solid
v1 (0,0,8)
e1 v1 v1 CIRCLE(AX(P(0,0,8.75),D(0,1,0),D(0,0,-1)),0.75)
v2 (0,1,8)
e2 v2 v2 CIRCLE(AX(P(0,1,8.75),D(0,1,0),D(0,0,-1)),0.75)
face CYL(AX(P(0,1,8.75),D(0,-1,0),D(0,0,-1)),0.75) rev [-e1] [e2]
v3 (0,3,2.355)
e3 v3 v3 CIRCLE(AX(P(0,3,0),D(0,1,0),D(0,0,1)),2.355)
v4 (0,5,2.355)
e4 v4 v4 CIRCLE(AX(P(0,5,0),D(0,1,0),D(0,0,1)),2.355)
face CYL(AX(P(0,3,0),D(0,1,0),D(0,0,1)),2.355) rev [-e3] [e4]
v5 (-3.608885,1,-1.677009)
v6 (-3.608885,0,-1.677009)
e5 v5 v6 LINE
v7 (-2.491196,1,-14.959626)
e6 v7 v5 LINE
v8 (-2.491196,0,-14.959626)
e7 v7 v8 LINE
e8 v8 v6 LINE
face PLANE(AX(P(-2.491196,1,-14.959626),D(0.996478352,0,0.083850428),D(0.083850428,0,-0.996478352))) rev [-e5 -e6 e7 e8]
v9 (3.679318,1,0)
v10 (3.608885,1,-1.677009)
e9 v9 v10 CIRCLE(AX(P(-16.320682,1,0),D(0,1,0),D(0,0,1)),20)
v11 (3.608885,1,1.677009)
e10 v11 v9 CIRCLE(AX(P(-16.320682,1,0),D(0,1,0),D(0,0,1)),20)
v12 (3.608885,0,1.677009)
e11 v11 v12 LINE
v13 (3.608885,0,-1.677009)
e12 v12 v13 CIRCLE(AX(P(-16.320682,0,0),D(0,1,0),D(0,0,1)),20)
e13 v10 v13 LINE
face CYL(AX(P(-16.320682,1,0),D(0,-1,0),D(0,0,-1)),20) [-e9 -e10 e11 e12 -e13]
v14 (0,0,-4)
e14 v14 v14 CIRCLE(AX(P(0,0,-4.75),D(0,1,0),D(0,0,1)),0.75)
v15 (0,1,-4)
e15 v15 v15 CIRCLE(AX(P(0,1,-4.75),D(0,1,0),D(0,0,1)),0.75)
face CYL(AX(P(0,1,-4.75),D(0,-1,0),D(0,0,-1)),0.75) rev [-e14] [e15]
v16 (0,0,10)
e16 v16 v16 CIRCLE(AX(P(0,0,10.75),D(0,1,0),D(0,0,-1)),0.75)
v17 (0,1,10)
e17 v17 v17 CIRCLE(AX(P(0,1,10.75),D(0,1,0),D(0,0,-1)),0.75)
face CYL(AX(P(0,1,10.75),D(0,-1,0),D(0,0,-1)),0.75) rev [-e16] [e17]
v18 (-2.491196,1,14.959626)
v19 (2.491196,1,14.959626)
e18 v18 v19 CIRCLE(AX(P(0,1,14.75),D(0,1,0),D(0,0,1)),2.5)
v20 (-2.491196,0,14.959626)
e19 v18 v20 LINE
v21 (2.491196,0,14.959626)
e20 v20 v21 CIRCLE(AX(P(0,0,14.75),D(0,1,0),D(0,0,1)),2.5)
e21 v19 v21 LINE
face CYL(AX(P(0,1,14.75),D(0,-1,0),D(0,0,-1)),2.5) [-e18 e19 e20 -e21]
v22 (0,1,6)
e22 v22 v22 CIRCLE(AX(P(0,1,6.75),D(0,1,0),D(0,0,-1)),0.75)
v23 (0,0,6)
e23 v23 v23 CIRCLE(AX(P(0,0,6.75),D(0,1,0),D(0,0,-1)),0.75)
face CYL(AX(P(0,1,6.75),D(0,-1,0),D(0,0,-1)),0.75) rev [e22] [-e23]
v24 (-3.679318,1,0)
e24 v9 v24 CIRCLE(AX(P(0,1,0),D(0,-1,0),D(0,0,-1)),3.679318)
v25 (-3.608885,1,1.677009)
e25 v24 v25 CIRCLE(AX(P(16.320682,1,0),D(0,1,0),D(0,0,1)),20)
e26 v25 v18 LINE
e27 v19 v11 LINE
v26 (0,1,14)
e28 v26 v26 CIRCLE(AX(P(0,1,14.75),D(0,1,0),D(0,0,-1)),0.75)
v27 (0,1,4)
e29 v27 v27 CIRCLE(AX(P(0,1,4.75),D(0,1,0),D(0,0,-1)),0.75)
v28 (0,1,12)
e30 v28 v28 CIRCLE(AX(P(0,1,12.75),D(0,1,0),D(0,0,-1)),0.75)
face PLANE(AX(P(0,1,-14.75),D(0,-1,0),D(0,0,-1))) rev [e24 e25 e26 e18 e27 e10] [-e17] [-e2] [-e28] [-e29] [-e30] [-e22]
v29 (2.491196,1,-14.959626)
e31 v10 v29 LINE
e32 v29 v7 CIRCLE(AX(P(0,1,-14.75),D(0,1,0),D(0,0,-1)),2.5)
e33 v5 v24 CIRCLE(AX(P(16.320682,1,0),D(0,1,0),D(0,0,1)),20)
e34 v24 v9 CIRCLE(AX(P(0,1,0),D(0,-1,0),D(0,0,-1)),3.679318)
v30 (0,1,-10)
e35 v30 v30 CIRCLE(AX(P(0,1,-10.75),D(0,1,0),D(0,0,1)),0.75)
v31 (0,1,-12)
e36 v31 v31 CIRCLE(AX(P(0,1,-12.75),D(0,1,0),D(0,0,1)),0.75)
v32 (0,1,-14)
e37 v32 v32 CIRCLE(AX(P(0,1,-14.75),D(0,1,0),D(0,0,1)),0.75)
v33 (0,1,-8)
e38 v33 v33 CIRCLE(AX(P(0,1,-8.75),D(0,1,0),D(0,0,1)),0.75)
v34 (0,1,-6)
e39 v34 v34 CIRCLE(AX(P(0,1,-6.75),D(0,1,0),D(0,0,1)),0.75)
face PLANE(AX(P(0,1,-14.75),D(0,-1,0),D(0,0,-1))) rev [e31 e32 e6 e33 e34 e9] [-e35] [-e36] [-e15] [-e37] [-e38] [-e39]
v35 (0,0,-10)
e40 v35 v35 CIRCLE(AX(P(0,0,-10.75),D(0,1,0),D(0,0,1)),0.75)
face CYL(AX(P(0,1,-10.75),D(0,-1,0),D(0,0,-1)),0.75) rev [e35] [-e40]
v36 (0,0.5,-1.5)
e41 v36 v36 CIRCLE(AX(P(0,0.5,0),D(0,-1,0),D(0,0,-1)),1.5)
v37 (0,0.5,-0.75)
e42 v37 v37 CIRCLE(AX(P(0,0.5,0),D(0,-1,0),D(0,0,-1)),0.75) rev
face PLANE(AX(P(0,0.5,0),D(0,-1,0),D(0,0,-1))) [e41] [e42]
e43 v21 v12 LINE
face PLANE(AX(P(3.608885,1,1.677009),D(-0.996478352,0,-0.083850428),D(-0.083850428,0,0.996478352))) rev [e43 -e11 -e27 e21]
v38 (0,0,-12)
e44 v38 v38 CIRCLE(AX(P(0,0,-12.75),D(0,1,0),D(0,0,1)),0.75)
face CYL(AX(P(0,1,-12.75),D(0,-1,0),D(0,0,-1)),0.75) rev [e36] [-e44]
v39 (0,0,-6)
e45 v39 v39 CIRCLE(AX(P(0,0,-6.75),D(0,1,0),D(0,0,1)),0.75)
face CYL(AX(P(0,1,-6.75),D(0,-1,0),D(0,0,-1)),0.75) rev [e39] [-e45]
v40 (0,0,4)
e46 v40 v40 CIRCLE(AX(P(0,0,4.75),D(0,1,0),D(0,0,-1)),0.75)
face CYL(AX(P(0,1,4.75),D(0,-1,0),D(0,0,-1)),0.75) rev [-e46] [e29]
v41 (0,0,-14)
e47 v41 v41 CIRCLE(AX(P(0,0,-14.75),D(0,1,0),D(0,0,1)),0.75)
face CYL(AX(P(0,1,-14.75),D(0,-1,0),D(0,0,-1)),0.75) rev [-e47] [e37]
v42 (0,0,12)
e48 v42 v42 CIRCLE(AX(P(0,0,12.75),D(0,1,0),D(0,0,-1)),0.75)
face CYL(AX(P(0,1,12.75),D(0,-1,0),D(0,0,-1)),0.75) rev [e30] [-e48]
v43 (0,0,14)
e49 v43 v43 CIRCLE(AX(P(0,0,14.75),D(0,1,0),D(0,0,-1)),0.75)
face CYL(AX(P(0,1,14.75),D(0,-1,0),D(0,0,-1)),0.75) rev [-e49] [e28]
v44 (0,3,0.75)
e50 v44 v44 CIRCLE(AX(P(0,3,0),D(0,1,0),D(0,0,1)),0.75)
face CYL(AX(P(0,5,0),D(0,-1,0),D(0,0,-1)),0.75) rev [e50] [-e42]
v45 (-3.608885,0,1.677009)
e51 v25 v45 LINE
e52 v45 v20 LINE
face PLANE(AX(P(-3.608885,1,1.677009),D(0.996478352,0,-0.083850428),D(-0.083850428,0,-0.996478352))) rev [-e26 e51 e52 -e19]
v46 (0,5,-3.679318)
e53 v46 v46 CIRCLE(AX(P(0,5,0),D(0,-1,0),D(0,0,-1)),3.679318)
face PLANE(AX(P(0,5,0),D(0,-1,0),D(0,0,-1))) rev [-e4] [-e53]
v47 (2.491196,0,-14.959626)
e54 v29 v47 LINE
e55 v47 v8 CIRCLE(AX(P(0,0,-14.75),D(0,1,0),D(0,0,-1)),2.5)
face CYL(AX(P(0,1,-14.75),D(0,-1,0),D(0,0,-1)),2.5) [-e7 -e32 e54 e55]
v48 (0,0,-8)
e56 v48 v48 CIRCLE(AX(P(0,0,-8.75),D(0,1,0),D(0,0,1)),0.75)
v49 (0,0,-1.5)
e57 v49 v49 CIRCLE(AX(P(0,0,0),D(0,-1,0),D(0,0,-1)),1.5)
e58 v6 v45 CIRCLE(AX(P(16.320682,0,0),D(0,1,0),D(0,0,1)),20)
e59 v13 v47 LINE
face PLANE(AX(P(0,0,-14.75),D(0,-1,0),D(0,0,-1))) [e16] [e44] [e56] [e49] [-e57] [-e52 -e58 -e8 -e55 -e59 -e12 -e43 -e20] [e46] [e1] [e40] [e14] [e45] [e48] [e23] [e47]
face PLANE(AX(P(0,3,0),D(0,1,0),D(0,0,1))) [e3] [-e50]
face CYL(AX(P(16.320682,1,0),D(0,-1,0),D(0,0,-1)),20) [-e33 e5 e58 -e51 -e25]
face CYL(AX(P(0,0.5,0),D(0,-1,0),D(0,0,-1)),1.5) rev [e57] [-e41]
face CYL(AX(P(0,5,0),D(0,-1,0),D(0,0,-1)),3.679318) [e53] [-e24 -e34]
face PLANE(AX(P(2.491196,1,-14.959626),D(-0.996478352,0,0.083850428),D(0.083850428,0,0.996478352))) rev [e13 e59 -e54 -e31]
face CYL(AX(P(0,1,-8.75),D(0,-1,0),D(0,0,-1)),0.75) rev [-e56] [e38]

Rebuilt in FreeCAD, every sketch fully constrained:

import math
import FreeCAD as App
import Part
import Sketcher

V = App.Vector

doc = App.newDocument("Part")
body = doc.addObject("PartDesign::Body", "Body")

sketch1 = body.newObject("Sketcher::SketchObject", "Sketch")
sketch1.AttachmentSupport = (doc.getObject("XZ_Plane"), [""])
sketch1.MapMode = "FlatFace"
sketch1.addGeometry(Part.LineSegment(V(-2.491196, -14.959626, 0), V(-3.608885, -1.677009, 0)), False)
sketch1.addGeometry(Part.ArcOfCircle(Part.Circle(V(16.320682, 0, 0), V(0, 0, 1), 20), math.radians(175.190077), math.radians(184.809923)), False)
sketch1.addGeometry(Part.LineSegment(V(-3.608885, 1.677009, 0), V(-2.491196, 14.959626, 0)), False)
sketch1.addGeometry(Part.ArcOfCircle(Part.Circle(V(0, 14.75, 0), V(0, 0, 1), 2.5), math.radians(4.809923), math.radians(175.190077)), False)
sketch1.addGeometry(Part.LineSegment(V(2.491196, 14.959626, 0), V(3.608885, 1.677009, 0)), False)
sketch1.addGeometry(Part.ArcOfCircle(Part.Circle(V(-16.320682, 0, 0), V(0, 0, 1), 20), math.radians(-4.809923), math.radians(4.809923)), False)
sketch1.addGeometry(Part.LineSegment(V(3.608885, -1.677009, 0), V(2.491196, -14.959626, 0)), False)
sketch1.addGeometry(Part.ArcOfCircle(Part.Circle(V(0, -14.75, 0), V(0, 0, 1), 2.5), math.radians(-175.190077), math.radians(-4.809923)), False)
sketch1.addGeometry(Part.Circle(V(0, 14.75, 0), V(0, 0, 1), 0.75), False)
sketch1.addGeometry(Part.Circle(V(0, 12.75, 0), V(0, 0, 1), 0.75), False)
sketch1.addGeometry(Part.Circle(V(0, 10.75, 0), V(0, 0, 1), 0.75), False)
sketch1.addGeometry(Part.Circle(V(0, 8.75, 0), V(0, 0, 1), 0.75), False)
sketch1.addGeometry(Part.Circle(V(0, 6.75, 0), V(0, 0, 1), 0.75), False)
sketch1.addGeometry(Part.Circle(V(0, 4.75, 0), V(0, 0, 1), 0.75), False)
sketch1.addGeometry(Part.Circle(V(0, 0, 0), V(0, 0, 1), 0.75), False)
sketch1.addGeometry(Part.Circle(V(0, -4.75, 0), V(0, 0, 1), 0.75), False)
sketch1.addGeometry(Part.Circle(V(0, -6.75, 0), V(0, 0, 1), 0.75), False)
sketch1.addGeometry(Part.Circle(V(0, -8.75, 0), V(0, 0, 1), 0.75), False)
sketch1.addGeometry(Part.Circle(V(0, -10.75, 0), V(0, 0, 1), 0.75), False)
sketch1.addGeometry(Part.Circle(V(0, -12.75, 0), V(0, 0, 1), 0.75), False)
sketch1.addGeometry(Part.Circle(V(0, -14.75, 0), V(0, 0, 1), 0.75), False)
sketch1.addConstraint(Sketcher.Constraint("Tangent", 0, 2, 1, 2))
sketch1.addConstraint(Sketcher.Constraint("Tangent", 1, 1, 2, 1))
sketch1.addConstraint(Sketcher.Constraint("Tangent", 2, 2, 3, 2))
sketch1.addConstraint(Sketcher.Constraint("Tangent", 3, 1, 4, 1))
sketch1.addConstraint(Sketcher.Constraint("Tangent", 4, 2, 5, 2))
sketch1.addConstraint(Sketcher.Constraint("Tangent", 5, 1, 6, 1))
sketch1.addConstraint(Sketcher.Constraint("Tangent", 6, 2, 7, 2))
sketch1.addConstraint(Sketcher.Constraint("Tangent", 7, 1, 0, 1))
sketch1.addConstraint(Sketcher.Constraint("Coincident", 14, 3, -1, 1))
sketch1.addConstraint(Sketcher.Constraint("Coincident", 8, 3, 3, 3))
sketch1.addConstraint(Sketcher.Constraint("Coincident", 20, 3, 7, 3))
sketch1.addConstraint(Sketcher.Constraint("Equal", 1, 5))
sketch1.addConstraint(Sketcher.Constraint("Equal", 3, 7))
sketch1.addConstraint(Sketcher.Constraint("Equal", 8, 9))
sketch1.addConstraint(Sketcher.Constraint("Equal", 9, 10))
sketch1.addConstraint(Sketcher.Constraint("Equal", 10, 11))
sketch1.addConstraint(Sketcher.Constraint("Equal", 11, 12))
sketch1.addConstraint(Sketcher.Constraint("Equal", 12, 13))
sketch1.addConstraint(Sketcher.Constraint("Equal", 13, 14))
sketch1.addConstraint(Sketcher.Constraint("Equal", 14, 15))
sketch1.addConstraint(Sketcher.Constraint("Equal", 15, 16))
sketch1.addConstraint(Sketcher.Constraint("Equal", 16, 17))
sketch1.addConstraint(Sketcher.Constraint("Equal", 17, 18))
sketch1.addConstraint(Sketcher.Constraint("Equal", 18, 19))
sketch1.addConstraint(Sketcher.Constraint("Equal", 19, 20))
sketch1.addConstraint(Sketcher.Constraint("Symmetric", 1, 3, 5, 3, -1, 1))
sketch1.addConstraint(Sketcher.Constraint("Symmetric", 3, 3, 7, 3, -1, 1))
sketch1.addConstraint(Sketcher.Constraint("Symmetric", 13, 3, 15, 3, -1, 1))
sketch1.addConstraint(Sketcher.Constraint("Symmetric", 12, 3, 16, 3, -1, 1))
sketch1.addConstraint(Sketcher.Constraint("Symmetric", 11, 3, 17, 3, -1, 1))
sketch1.addConstraint(Sketcher.Constraint("Symmetric", 10, 3, 18, 3, -1, 1))
sketch1.addConstraint(Sketcher.Constraint("Symmetric", 9, 3, 19, 3, -1, 1))
sketch1.addConstraint(Sketcher.Constraint("Symmetric", 2, 2, 3, 1, -2))
sketch1.addConstraint(Sketcher.Constraint("PointOnObject", 9, 3, -2))
sketch1.addConstraint(Sketcher.Constraint("PointOnObject", 10, 3, -2))
sketch1.addConstraint(Sketcher.Constraint("PointOnObject", 11, 3, -2))
sketch1.addConstraint(Sketcher.Constraint("PointOnObject", 12, 3, -2))
sketch1.addConstraint(Sketcher.Constraint("PointOnObject", 13, 3, -2))
sketch1.addConstraint(Sketcher.Constraint("Radius", 1, 20.0))
sketch1.addConstraint(Sketcher.Constraint("Diameter", 8, 1.5))
sketch1.addConstraint(Sketcher.Constraint("Radius", 3, 2.5))
sketch1.addConstraint(Sketcher.Constraint("DistanceY", 9, 3, 3, 3, 2.0))
sketch1.addConstraint(Sketcher.Constraint("DistanceY", 10, 3, 9, 3, 2.0))
sketch1.addConstraint(Sketcher.Constraint("DistanceY", 11, 3, 10, 3, 2.0))
sketch1.addConstraint(Sketcher.Constraint("DistanceY", 12, 3, 11, 3, 2.0))
sketch1.addConstraint(Sketcher.Constraint("DistanceY", 13, 3, 12, 3, 2.0))
sketch1.addConstraint(Sketcher.Constraint("DistanceY", 7, 3, 3, 3, 29.5))
sketch1.addConstraint(Sketcher.Constraint("Distance", 0, 13.32956))
pad1 = body.newObject("PartDesign::Pad", "Pad")
pad1.Profile = sketch1
pad1.Length = 1
pad1.Reversed = True

sketch2 = body.newObject("Sketcher::SketchObject", "Sketch001")
sketch2.AttachmentSupport = (doc.getObject("XZ_Plane"), [""])
sketch2.MapMode = "FlatFace"
sketch2.addGeometry(Part.Circle(V(0, 0, 0), V(0, 0, 1), 3.679318), False)
sketch2.addConstraint(Sketcher.Constraint("Coincident", 0, 3, -1, 1))
sketch2.addConstraint(Sketcher.Constraint("Diameter", 0, 7.358636))
pad2 = body.newObject("PartDesign::Pad", "Pad001")
pad2.Profile = sketch2
pad2.Length = 5
pad2.Reversed = True

sketch3 = body.newObject("Sketcher::SketchObject", "Sketch002")
sketch3.AttachmentSupport = (doc.getObject("XZ_Plane"), [""])
sketch3.MapMode = "FlatFace"
sketch3.addGeometry(Part.Circle(V(0, 0, 0), V(0, 0, 1), 1.5), False)
sketch3.addConstraint(Sketcher.Constraint("Coincident", 0, 3, -1, 1))
sketch3.addConstraint(Sketcher.Constraint("Diameter", 0, 3.0))
pocket1 = body.newObject("PartDesign::Pocket", "Pocket")
pocket1.Profile = sketch3
pocket1.Length = 0.5

sketch4 = body.newObject("Sketcher::SketchObject", "Sketch003")
sketch4.AttachmentSupport = (doc.getObject("XZ_Plane"), [""])
sketch4.MapMode = "FlatFace"
sketch4.addGeometry(Part.Circle(V(0, 0, 0), V(0, 0, 1), 0.75), False)
sketch4.addConstraint(Sketcher.Constraint("Coincident", 0, 3, -1, 1))
sketch4.addConstraint(Sketcher.Constraint("Diameter", 0, 1.5))
pocket2 = body.newObject("PartDesign::Pocket", "Pocket001")
pocket2.Profile = sketch4
pocket2.Type = "ThroughAll"

sketch5 = body.newObject("Sketcher::SketchObject", "Sketch004")
sketch5.AttachmentSupport = (doc.getObject("XZ_Plane"), [""])
sketch5.MapMode = "FlatFace"
sketch5.AttachmentOffset = App.Placement(V(0, 0, -5), App.Rotation())
sketch5.addGeometry(Part.Circle(V(0, 0, 0), V(0, 0, 1), 2.355), False)
sketch5.addConstraint(Sketcher.Constraint("Coincident", 0, 3, -1, 1))
sketch5.addConstraint(Sketcher.Constraint("Diameter", 0, 4.71))
pocket3 = body.newObject("PartDesign::Pocket", "Pocket002")
pocket3.Profile = sketch5
pocket3.Length = 2
pocket3.Reversed = True

doc.recompute()
